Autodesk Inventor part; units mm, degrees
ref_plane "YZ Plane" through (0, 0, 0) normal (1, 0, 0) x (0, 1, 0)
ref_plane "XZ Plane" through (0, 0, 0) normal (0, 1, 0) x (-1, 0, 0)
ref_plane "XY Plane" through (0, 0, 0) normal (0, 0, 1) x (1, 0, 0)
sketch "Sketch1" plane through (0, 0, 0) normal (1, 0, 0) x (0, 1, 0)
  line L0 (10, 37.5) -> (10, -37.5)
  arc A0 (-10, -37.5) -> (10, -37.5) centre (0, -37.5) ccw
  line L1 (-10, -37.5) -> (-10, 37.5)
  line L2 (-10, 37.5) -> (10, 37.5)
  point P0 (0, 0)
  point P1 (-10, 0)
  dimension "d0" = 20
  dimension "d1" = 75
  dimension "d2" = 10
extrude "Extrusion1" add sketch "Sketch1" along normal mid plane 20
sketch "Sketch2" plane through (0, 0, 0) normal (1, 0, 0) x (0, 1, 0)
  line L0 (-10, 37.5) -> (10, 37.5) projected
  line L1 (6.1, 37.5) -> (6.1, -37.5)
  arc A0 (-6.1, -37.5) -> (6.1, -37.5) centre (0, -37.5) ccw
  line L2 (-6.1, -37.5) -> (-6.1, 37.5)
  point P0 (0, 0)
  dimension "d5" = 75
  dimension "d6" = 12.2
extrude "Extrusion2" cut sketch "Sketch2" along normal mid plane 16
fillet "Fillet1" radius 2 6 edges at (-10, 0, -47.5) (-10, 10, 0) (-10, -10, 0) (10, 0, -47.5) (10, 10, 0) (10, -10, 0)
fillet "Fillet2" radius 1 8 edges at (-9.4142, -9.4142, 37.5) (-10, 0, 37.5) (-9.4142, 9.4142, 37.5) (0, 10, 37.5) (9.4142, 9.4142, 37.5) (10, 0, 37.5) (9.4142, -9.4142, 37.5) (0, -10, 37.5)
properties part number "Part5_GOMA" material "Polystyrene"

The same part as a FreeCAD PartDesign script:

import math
import FreeCAD as App
import Part
import Sketcher

V = App.Vector


def edges_at(feature, points):
    """Names of the edges that pass closest to the given points."""
    edges = feature.Shape.Edges
    near = lambda p: min(range(len(edges)), key=lambda i: edges[i].distToShape(Part.Vertex(*p))[0])
    return sorted({f"Edge{near(p) + 1}" for p in points})

doc = App.newDocument("Part")
params = doc.addObject("Spreadsheet::Sheet", "Params")
for row, (alias, value) in enumerate([
    ("sketch1_radius", "10 mm"),
    ("sketch1_height", "75 mm"),
    ("pad1_length", "20 mm"),
    ("sketch2_radius", "6.1 mm"),
    ("sketch2_height", "75 mm"),
    ("pocket1_length", "16 mm"),
    ("fillet_radius", "2 mm"),
    ("fillet2_radius", "1 mm"),
], start=1):
    params.set(f"A{row}", alias)
    params.set(f"B{row}", "=" + value)
    params.setAlias(f"B{row}", alias)

body = doc.addObject("PartDesign::Body", "Body")

# Sketch on YZ plane
sketch1 = body.newObject("Sketcher::SketchObject", "Sketch")
sketch1.AttachmentSupport = (doc.getObject("YZ_Plane"), [""])
sketch1.MapMode = "FlatFace"
sketch1.addGeometry(Part.LineSegment(V(10, -38, 0), V(10, 38, 0)), False)
sketch1.addGeometry(Part.LineSegment(V(10, 38, 0), V(-10, 38, 0)), False)
sketch1.addGeometry(Part.LineSegment(V(-10, 38, 0), V(-10, -38, 0)), False)
sketch1.addGeometry(Part.ArcOfCircle(Part.Circle(V(0, -38, 0), V(0, 0, 1), 10), math.radians(180), math.radians(360)), False)
sketch1.addConstraint(Sketcher.Constraint("Coincident", 0, 2, 1, 1))
sketch1.addConstraint(Sketcher.Constraint("Coincident", 1, 2, 2, 1))
sketch1.addConstraint(Sketcher.Constraint("Tangent", 2, 2, 3, 1))
sketch1.addConstraint(Sketcher.Constraint("Tangent", 3, 2, 0, 1))
sketch1.addConstraint(Sketcher.Constraint("Vertical", 0))
sketch1.addConstraint(Sketcher.Constraint("Horizontal", 1))
sketch1.addConstraint(Sketcher.Constraint("Vertical", 2))
sketch1.addConstraint(Sketcher.Constraint("Symmetric", 0, 2, 2, 2, -1, 1))
sketch1.addConstraint(Sketcher.Constraint("Radius", 3, 10.0))
sketch1.addConstraint(Sketcher.Constraint("DistanceY", 0, 1, 0, 2, 75.0))
sketch1.setExpression("Constraints[8]", "Params.sketch1_radius")
sketch1.setExpression("Constraints[9]", "Params.sketch1_height")
pad1 = body.newObject("PartDesign::Pad", "Pad")
pad1.Profile = sketch1
pad1.setExpression("Length", "Params.pad1_length")
pad1.Midplane = True

# Sketch on YZ plane
sketch2 = body.newObject("Sketcher::SketchObject", "Sketch001")
sketch2.AttachmentSupport = (doc.getObject("YZ_Plane"), [""])
sketch2.MapMode = "FlatFace"
sketch2.addGeometry(Part.LineSegment(V(6, 38, 0), V(-6, 38, 0)), False)
sketch2.addGeometry(Part.LineSegment(V(-6, 38, 0), V(-6, -38, 0)), False)
sketch2.addGeometry(Part.ArcOfCircle(Part.Circle(V(0, -38, 0), V(0, 0, 1), 6), math.radians(180), math.radians(360)), False)
sketch2.addGeometry(Part.LineSegment(V(6, -38, 0), V(6, 38, 0)), False)
sketch2.addConstraint(Sketcher.Constraint("Coincident", 0, 2, 1, 1))
sketch2.addConstraint(Sketcher.Constraint("Tangent", 1, 2, 2, 1))
sketch2.addConstraint(Sketcher.Constraint("Tangent", 2, 2, 3, 1))
sketch2.addConstraint(Sketcher.Constraint("Coincident", 3, 2, 0, 1))
sketch2.addConstraint(Sketcher.Constraint("Horizontal", 0))
sketch2.addConstraint(Sketcher.Constraint("Vertical", 1))
sketch2.addConstraint(Sketcher.Constraint("Vertical", 3))
sketch2.addConstraint(Sketcher.Constraint("Symmetric", 0, 2, 2, 2, -1, 1))
sketch2.addConstraint(Sketcher.Constraint("Radius", 2, 6.1))
sketch2.addConstraint(Sketcher.Constraint("DistanceY", 1, 2, 1, 1, 75.0))
sketch2.setExpression("Constraints[8]", "Params.sketch2_radius")
sketch2.setExpression("Constraints[9]", "Params.sketch2_height")
pocket1 = body.newObject("PartDesign::Pocket", "Pocket")
pocket1.Profile = sketch2
pocket1.setExpression("Length", "Params.pocket1_length")
pocket1.Midplane = True
doc.recompute()

fillet = body.newObject("PartDesign::Fillet", "Fillet")
fillet.Base = (pocket1, edges_at(pocket1, [
    (-10, 0, -47.5),
    (-10, 10, 0),
    (-10, -10, 0),
    (10, 0, -47.5),
    (10, 10, 0),
    (10, -10, 0),
]))
fillet.setExpression("Radius", "Params.fillet_radius")
doc.recompute()

fillet2 = body.newObject("PartDesign::Fillet", "Fillet001")
fillet2.Base = (fillet, edges_at(fillet, [
    (-9.414, -9.414, 37.5),
    (-10, 0, 37.5),
    (-9.414, 9.414, 37.5),
    (0, 10, 37.5),
    (9.414, 9.414, 37.5),
    (10, 0, 37.5),
    (9.414, -9.414, 37.5),
    (0, -10, 37.5),
]))
fillet2.setExpression("Radius", "Params.fillet2_radius")

doc.recompute()
